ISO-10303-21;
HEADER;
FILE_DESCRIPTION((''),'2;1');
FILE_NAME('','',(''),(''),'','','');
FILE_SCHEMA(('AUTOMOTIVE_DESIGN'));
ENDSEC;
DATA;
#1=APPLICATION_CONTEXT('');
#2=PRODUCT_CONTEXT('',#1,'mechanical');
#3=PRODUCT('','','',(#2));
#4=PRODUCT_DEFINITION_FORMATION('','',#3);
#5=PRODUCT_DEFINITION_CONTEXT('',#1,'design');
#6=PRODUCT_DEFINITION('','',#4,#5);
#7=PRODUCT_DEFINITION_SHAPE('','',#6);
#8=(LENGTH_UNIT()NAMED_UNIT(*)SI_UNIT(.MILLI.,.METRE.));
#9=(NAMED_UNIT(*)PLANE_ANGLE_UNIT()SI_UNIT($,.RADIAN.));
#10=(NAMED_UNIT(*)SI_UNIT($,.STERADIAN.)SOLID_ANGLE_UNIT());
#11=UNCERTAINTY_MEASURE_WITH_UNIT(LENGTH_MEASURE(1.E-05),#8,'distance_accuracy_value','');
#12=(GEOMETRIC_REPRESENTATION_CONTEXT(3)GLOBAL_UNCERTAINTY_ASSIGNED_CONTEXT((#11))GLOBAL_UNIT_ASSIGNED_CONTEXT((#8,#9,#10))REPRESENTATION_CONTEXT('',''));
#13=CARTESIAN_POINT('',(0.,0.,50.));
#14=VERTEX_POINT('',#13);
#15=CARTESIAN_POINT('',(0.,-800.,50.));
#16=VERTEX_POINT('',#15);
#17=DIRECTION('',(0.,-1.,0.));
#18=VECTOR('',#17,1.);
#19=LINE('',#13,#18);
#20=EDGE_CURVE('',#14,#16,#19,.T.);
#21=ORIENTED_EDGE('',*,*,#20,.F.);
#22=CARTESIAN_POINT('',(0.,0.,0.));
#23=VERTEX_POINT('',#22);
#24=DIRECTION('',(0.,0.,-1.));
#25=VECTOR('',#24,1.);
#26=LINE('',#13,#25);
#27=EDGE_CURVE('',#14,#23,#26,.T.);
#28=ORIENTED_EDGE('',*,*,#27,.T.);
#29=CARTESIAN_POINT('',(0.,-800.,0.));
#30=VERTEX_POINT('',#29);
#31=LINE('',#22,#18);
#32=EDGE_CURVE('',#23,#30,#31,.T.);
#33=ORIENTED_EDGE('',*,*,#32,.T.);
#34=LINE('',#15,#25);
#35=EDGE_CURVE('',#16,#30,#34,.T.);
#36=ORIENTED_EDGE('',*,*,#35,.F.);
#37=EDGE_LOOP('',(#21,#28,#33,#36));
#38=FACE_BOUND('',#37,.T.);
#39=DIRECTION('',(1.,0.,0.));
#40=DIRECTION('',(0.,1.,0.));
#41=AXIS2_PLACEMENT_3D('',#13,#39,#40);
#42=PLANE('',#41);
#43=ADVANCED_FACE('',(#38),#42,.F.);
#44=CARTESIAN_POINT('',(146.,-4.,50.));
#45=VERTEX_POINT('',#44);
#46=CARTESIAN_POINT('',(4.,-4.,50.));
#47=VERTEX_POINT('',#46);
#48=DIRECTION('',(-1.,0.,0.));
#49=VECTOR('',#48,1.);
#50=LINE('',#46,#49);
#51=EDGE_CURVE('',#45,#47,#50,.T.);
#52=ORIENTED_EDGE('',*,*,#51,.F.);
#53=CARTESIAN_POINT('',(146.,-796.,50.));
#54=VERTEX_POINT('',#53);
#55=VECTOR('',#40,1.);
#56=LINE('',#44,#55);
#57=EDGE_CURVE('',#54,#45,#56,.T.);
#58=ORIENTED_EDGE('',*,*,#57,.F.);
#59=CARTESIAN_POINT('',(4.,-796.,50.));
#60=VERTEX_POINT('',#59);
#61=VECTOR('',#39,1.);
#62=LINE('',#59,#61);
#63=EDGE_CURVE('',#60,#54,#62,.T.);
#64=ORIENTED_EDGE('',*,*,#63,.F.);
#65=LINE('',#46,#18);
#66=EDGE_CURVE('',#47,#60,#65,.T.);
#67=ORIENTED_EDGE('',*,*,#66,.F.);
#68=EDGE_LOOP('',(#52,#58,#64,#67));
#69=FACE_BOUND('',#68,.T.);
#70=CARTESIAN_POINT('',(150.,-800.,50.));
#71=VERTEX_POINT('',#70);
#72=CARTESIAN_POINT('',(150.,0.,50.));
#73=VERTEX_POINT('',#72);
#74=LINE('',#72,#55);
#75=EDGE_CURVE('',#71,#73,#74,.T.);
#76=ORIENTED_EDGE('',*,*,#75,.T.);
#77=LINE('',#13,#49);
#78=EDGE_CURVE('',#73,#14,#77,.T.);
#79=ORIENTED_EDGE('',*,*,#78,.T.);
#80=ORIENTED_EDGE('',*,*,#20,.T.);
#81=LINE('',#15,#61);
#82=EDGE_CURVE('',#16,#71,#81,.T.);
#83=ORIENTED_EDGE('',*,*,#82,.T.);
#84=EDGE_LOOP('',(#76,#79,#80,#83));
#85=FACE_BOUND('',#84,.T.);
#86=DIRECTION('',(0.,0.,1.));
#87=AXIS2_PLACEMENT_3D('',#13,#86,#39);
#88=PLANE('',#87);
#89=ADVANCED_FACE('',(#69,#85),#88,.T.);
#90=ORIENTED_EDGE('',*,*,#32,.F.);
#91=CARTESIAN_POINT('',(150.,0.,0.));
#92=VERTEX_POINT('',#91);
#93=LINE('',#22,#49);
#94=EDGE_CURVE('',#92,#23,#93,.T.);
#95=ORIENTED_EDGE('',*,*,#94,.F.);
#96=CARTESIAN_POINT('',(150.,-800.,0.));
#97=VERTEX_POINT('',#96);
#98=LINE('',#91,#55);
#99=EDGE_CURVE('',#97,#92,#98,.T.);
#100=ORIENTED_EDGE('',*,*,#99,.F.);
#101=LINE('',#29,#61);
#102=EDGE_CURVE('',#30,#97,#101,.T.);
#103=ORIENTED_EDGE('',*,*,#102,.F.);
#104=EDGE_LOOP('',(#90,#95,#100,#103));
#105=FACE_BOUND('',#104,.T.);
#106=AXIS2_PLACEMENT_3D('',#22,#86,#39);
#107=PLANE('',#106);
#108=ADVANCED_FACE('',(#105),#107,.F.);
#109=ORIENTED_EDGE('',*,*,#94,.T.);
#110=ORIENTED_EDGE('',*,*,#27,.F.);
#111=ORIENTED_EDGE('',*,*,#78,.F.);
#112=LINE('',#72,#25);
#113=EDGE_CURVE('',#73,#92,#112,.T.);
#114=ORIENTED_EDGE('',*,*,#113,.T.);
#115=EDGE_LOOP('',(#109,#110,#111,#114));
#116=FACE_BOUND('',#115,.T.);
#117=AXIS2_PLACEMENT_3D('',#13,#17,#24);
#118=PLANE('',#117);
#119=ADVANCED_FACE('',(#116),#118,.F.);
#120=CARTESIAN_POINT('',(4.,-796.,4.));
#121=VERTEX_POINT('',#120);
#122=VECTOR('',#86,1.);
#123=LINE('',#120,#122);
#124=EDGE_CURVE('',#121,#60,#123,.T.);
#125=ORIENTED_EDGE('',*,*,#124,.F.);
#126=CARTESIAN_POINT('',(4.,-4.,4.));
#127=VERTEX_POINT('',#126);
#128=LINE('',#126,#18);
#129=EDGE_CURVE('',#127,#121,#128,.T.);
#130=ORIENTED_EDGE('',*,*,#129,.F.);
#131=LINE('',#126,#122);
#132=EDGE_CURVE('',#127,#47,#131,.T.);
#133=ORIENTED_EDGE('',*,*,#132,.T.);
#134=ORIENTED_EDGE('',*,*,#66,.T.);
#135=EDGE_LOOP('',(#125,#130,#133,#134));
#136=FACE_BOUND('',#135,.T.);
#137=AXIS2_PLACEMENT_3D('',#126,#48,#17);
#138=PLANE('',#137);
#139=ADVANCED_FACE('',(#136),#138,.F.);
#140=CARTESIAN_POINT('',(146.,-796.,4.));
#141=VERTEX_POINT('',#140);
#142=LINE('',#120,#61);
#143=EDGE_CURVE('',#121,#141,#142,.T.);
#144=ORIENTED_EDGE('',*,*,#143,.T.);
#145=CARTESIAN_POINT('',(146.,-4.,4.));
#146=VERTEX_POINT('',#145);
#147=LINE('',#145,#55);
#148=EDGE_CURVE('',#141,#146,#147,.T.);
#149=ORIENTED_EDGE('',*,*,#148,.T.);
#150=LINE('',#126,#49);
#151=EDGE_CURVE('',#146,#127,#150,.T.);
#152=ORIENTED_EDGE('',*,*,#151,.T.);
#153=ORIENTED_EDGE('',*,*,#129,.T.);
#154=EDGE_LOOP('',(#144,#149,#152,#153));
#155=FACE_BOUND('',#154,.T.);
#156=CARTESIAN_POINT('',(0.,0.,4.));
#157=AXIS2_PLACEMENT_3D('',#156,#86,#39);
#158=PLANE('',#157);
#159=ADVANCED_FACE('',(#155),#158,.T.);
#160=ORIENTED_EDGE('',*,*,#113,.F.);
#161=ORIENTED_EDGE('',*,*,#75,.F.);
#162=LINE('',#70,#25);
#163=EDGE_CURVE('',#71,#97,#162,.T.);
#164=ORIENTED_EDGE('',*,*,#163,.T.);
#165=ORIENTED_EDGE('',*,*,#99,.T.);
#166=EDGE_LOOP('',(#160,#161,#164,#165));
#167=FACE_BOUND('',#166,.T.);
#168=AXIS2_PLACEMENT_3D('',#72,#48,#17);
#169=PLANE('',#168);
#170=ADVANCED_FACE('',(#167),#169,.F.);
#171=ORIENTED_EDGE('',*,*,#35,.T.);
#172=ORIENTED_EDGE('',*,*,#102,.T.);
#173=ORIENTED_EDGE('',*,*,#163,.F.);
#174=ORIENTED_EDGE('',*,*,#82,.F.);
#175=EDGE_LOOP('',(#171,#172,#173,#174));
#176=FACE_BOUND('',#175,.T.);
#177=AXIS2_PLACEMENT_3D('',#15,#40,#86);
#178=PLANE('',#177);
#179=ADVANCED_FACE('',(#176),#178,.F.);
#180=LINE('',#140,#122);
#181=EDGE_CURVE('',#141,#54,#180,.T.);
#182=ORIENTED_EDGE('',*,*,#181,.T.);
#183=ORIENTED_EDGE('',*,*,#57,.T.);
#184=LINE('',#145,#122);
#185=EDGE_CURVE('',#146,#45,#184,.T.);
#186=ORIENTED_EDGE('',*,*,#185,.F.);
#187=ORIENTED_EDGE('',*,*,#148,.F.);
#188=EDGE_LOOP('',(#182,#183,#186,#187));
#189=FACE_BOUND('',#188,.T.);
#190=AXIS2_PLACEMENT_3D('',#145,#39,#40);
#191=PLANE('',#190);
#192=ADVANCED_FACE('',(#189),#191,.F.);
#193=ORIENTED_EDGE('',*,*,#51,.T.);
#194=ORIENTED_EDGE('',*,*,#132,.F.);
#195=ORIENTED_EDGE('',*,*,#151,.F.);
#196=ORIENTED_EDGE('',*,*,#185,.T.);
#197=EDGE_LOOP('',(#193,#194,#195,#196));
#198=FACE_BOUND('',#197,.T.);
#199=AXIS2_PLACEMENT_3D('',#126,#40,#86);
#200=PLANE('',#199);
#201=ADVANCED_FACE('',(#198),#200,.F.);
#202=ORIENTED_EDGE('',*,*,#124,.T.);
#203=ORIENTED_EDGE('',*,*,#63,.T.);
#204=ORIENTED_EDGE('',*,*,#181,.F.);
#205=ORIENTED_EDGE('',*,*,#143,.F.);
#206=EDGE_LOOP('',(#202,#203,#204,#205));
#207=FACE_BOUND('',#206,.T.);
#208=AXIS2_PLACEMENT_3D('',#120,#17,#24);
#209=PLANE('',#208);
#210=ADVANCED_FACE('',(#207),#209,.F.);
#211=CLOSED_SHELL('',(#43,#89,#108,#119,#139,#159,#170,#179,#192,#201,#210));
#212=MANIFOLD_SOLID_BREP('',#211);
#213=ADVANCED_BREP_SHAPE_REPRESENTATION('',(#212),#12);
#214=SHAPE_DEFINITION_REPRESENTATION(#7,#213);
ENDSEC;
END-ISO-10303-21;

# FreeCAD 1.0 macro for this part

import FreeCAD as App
import Part
import Sketcher
Q = App.Units.Quantity

doc = App.newDocument("Part")
body = doc.addObject("PartDesign::Body", "Body")

# Sketch on XY plane
sketch1 = body.newObject("Sketcher::SketchObject", "Sketch")
sketch1.AttachmentSupport = (doc.getObject("XY_Plane"), [""])
sketch1.MapMode = "FlatFace"
sketch1.addGeometry([
    Part.LineSegment(App.Vector(0, 0, 0), App.Vector(0, -800, 0)),
    Part.LineSegment(App.Vector(0, -800, 0), App.Vector(150, -800, 0)),
    Part.LineSegment(App.Vector(150, -800, 0), App.Vector(150, 0, 0)),
    Part.LineSegment(App.Vector(150, 0, 0), App.Vector(0, 0, 0)),
], False)
sketch1.addConstraint([
    Sketcher.Constraint("Coincident", 0, 2, 1, 1),
    Sketcher.Constraint("Coincident", 1, 2, 2, 1),
    Sketcher.Constraint("Coincident", 2, 2, 3, 1),
    Sketcher.Constraint("Coincident", 3, 2, 0, 1),
    Sketcher.Constraint("Vertical", 0),
    Sketcher.Constraint("Horizontal", 1),
    Sketcher.Constraint("Vertical", 2),
    Sketcher.Constraint("Horizontal", 3),
    Sketcher.Constraint("Coincident", 3, 2, -1, 1),
    Sketcher.Constraint("DistanceX", 1, 1, 1, 2, Q("150 mm")),
    Sketcher.Constraint("DistanceY", 0, 2, 0, 1, Q("800 mm")),
])
pad1 = body.newObject("PartDesign::Pad", "Pad")
pad1.Profile = sketch1
pad1.Length = 50

# Sketch on XY plane
sketch2 = body.newObject("Sketcher::SketchObject", "Sketch001")
sketch2.AttachmentSupport = (doc.getObject("XY_Plane"), [""])
sketch2.MapMode = "FlatFace"
sketch2.AttachmentOffset = App.Placement(App.Vector(0, 0, 50), App.Rotation())
sketch2.addGeometry([
    Part.LineSegment(App.Vector(4, -4, 0), App.Vector(4, -796, 0)),
    Part.LineSegment(App.Vector(4, -796, 0), App.Vector(146, -796, 0)),
    Part.LineSegment(App.Vector(146, -796, 0), App.Vector(146, -4, 0)),
    Part.LineSegment(App.Vector(146, -4, 0), App.Vector(4, -4, 0)),
], False)
sketch2.addConstraint([
    Sketcher.Constraint("Coincident", 0, 2, 1, 1),
    Sketcher.Constraint("Coincident", 1, 2, 2, 1),
    Sketcher.Constraint("Coincident", 2, 2, 3, 1),
    Sketcher.Constraint("Coincident", 3, 2, 0, 1),
    Sketcher.Constraint("Vertical", 0),
    Sketcher.Constraint("Horizontal", 1),
    Sketcher.Constraint("Vertical", 2),
    Sketcher.Constraint("Horizontal", 3),
    Sketcher.Constraint("DistanceX", 1, 1, 1, 2, Q("142 mm")),
    Sketcher.Constraint("DistanceY", 0, 2, 0, 1, Q("792 mm")),
    Sketcher.Constraint("DistanceX", -1, 1, 0, 2, Q("4 mm")),
    Sketcher.Constraint("DistanceY", 0, 2, -1, 1, Q("796 mm")),
])
pocket1 = body.newObject("PartDesign::Pocket", "Pocket")
pocket1.Profile = sketch2
pocket1.Length = 46

doc.recompute()
